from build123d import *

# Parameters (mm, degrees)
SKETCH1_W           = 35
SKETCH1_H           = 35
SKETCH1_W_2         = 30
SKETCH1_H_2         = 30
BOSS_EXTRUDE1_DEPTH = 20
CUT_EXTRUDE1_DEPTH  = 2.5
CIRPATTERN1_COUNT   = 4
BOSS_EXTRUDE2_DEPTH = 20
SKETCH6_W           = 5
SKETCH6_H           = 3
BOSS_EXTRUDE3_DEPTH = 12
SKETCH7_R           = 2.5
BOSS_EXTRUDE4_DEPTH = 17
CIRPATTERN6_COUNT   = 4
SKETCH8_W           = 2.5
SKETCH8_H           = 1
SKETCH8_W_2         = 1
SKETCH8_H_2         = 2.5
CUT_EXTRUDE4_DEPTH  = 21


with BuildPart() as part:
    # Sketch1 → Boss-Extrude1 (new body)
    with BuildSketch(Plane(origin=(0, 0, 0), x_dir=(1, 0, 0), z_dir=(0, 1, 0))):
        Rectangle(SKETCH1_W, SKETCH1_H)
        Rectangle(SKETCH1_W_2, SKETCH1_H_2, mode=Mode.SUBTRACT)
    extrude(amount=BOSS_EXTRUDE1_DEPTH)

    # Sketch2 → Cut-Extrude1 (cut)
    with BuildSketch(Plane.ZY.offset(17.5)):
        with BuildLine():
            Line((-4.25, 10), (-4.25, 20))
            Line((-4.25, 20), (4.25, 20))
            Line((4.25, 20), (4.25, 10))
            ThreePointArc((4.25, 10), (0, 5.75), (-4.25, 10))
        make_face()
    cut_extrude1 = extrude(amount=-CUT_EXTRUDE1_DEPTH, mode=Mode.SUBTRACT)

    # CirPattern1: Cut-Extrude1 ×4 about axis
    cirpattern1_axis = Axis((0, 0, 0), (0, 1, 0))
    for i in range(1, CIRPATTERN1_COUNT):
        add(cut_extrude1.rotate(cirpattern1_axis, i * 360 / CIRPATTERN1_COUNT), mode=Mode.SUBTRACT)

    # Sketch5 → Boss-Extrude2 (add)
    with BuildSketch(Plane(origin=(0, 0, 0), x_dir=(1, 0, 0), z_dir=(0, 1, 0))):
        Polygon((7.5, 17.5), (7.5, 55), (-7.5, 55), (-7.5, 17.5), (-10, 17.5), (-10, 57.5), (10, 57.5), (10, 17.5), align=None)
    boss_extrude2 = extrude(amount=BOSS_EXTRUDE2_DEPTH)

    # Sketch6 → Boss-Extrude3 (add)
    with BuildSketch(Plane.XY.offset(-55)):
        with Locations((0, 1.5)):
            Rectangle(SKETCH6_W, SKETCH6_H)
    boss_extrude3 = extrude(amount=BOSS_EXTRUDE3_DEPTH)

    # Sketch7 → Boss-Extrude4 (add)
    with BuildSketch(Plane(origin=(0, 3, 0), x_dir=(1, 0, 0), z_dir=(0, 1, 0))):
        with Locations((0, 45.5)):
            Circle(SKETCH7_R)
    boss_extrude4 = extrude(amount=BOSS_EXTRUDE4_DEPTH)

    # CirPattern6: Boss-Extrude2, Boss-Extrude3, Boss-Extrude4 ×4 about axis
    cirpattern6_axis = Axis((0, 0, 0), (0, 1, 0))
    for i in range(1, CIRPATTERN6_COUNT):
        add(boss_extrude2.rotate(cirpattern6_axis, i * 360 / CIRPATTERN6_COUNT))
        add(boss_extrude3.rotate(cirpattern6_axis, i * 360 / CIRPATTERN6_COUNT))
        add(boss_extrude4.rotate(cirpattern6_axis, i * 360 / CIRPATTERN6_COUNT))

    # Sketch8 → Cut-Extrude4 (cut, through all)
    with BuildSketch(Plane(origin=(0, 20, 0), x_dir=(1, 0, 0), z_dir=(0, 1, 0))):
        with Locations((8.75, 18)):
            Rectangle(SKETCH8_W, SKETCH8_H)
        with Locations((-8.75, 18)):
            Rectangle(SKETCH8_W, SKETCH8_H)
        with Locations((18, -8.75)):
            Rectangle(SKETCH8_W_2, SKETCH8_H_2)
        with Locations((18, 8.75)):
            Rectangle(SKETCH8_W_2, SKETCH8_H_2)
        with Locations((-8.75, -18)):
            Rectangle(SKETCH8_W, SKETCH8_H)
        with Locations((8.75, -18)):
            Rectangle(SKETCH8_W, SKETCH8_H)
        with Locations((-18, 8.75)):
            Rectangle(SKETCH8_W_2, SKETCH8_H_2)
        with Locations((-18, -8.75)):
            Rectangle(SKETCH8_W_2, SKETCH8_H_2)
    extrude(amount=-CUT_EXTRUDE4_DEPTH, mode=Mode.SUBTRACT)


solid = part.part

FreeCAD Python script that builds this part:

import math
import FreeCAD as App
import Part
import Sketcher
from FreeCAD import Vector


def add_polygon(sketch, points):
    """Adds a closed chain of lines whose ends are joined by coincident constraints."""
    first, n = sketch.GeometryCount, len(points)
    for a, b in zip(points, points[1:] + points[:1]):
        sketch.addGeometry(Part.LineSegment(App.Vector(*a, 0), App.Vector(*b, 0)), False)
    for i in range(n):
        sketch.addConstraint(Sketcher.Constraint("Coincident", first + i, 2, first + (i + 1) % n, 1))

doc = App.newDocument("Part")
body = doc.addObject("PartDesign::Body", "Body")
body.AllowCompound = True

# Sketch on XZ plane
sketch1 = body.newObject("Sketcher::SketchObject", "Sketch")
sketch1.AttachmentSupport = (doc.getObject("XZ_Plane"), [""])
sketch1.MapMode = "FlatFace"
add_polygon(sketch1, [(-18, -18), (-18, 18), (18, 18), (18, -18)])  # lines 0-3
add_polygon(sketch1, [(15, 15), (-15, 15), (-15, -15), (15, -15)])  # lines 4-7
sketch1.addConstraint(Sketcher.Constraint("Vertical", 0))
sketch1.addConstraint(Sketcher.Constraint("Horizontal", 1))
sketch1.addConstraint(Sketcher.Constraint("Vertical", 2))
sketch1.addConstraint(Sketcher.Constraint("Horizontal", 3))
sketch1.addConstraint(Sketcher.Constraint("Horizontal", 4))
sketch1.addConstraint(Sketcher.Constraint("Vertical", 5))
sketch1.addConstraint(Sketcher.Constraint("Horizontal", 6))
sketch1.addConstraint(Sketcher.Constraint("Vertical", 7))
sketch1.addConstraint(Sketcher.Constraint("Symmetric", 0, 2, 2, 2, -1, 1))
sketch1.addConstraint(Sketcher.Constraint("Symmetric", 4, 2, 6, 2, -1, 1))
sketch1.addConstraint(Sketcher.Constraint("Equal", 3, 0))
sketch1.addConstraint(Sketcher.Constraint("Equal", 6, 5))
sketch1.addConstraint(Sketcher.Constraint("DistanceX", 1, 1, 1, 2, 35.0))
sketch1.addConstraint(Sketcher.Constraint("DistanceX", 4, 2, 4, 1, 30.0))
pad1 = body.newObject("PartDesign::Pad", "Pad")
pad1.Profile = sketch1
pad1.Length = 20
pad1.Reversed = True

# Sketch on YZ plane
sketch2 = body.newObject("Sketcher::SketchObject", "Sketch001")
sketch2.AttachmentSupport = (doc.getObject("YZ_Plane"), [""])
sketch2.MapMode = "FlatFace"
sketch2.AttachmentOffset = App.Placement(Vector(0, 0, -17.5), App.Rotation())
sketch2.addGeometry(Part.LineSegment(Vector(20, -4.2, 0), Vector(10, -4.2, 0)), False)
sketch2.addGeometry(Part.ArcOfCircle(Part.Circle(Vector(10, 0, 0), Vector(0, 0, 1), 4.2), math.radians(90), math.radians(270)), False)
sketch2.addGeometry(Part.LineSegment(Vector(10, 4.2, 0), Vector(20, 4.2, 0)), False)
sketch2.addGeometry(Part.LineSegment(Vector(20, 4.2, 0), Vector(20, -4.2, 0)), False)
sketch2.addConstraint(Sketcher.Constraint("Tangent", 0, 2, 1, 2))
sketch2.addConstraint(Sketcher.Constraint("Tangent", 1, 1, 2, 1))
sketch2.addConstraint(Sketcher.Constraint("Coincident", 2, 2, 3, 1))
sketch2.addConstraint(Sketcher.Constraint("Coincident", 3, 2, 0, 1))
sketch2.addConstraint(Sketcher.Constraint("Horizontal", 0))
sketch2.addConstraint(Sketcher.Constraint("Horizontal", 2))
sketch2.addConstraint(Sketcher.Constraint("Vertical", 3))
sketch2.addConstraint(Sketcher.Constraint("PointOnObject", 1, 3, -1))
sketch2.addConstraint(Sketcher.Constraint("DistanceX", 0, 2, 0, 1, 10.0))
sketch2.addConstraint(Sketcher.Constraint("Radius", 1, 4.25))
sketch2.addConstraint(Sketcher.Constraint("DistanceX", -1, 1, 1, 3, 10.0))
pocket1 = body.newObject("PartDesign::Pocket", "Pocket")
pocket1.Profile = sketch2
pocket1.Length = 2.5
pocket1.Reversed = True
doc.recompute()

polarpattern = body.newObject("PartDesign::PolarPattern", "PolarPattern")
polarpattern.Originals = [pocket1]
polarpattern.Axis = (doc.getObject("Y_Axis"), [""])
polarpattern.Angle = 360
polarpattern.Occurrences = 4
body.Tip = polarpattern

# Sketch on XZ plane
sketch3 = body.newObject("Sketcher::SketchObject", "Sketch002")
sketch3.AttachmentSupport = (doc.getObject("XZ_Plane"), [""])
sketch3.MapMode = "FlatFace"
add_polygon(sketch3, [(7.5, -55), (7.5, -17.5), (10, -17.5), (10, -57.5), (-10, -57.5), (-10, -17.5), (-7.5, -17.5), (-7.5, -55)])  # lines 0-7
sketch3.addConstraint(Sketcher.Constraint("Vertical", 0))
sketch3.addConstraint(Sketcher.Constraint("Horizontal", 1))
sketch3.addConstraint(Sketcher.Constraint("Vertical", 2))
sketch3.addConstraint(Sketcher.Constraint("Horizontal", 3))
sketch3.addConstraint(Sketcher.Constraint("Vertical", 4))
sketch3.addConstraint(Sketcher.Constraint("Horizontal", 5))
sketch3.addConstraint(Sketcher.Constraint("Vertical", 6))
sketch3.addConstraint(Sketcher.Constraint("Horizontal", 7))
sketch3.addConstraint(Sketcher.Constraint("Symmetric", 1, 2, 4, 2, -2))
sketch3.addConstraint(Sketcher.Constraint("Equal", 1, 5))
sketch3.addConstraint(Sketcher.Constraint("DistanceX", 3, 2, 3, 1, 20.0))
sketch3.addConstraint(Sketcher.Constraint("DistanceX", 7, 1, 7, 2, 15.0))
sketch3.addConstraint(Sketcher.Constraint("DistanceY", 2, 2, 2, 1, 40.0))
sketch3.addConstraint(Sketcher.Constraint("DistanceY", 0, 1, 0, 2, 37.5))
sketch3.addConstraint(Sketcher.Constraint("DistanceY", 6, 2, -1, 1, 55.0))
pad2 = body.newObject("PartDesign::Pad", "Pad001")
pad2.Profile = sketch3
pad2.Length = 20
pad2.Reversed = True

# Sketch on XY plane
sketch4 = body.newObject("Sketcher::SketchObject", "Sketch003")
sketch4.AttachmentSupport = (doc.getObject("XY_Plane"), [""])
sketch4.MapMode = "FlatFace"
sketch4.AttachmentOffset = App.Placement(Vector(0, 0, -55), App.Rotation())
add_polygon(sketch4, [(-2.5, 3), (-2.5, 0), (2.5, 0), (2.5, 3)])  # lines 0-3
sketch4.addConstraint(Sketcher.Constraint("Vertical", 0))
sketch4.addConstraint(Sketcher.Constraint("Horizontal", 1))
sketch4.addConstraint(Sketcher.Constraint("Vertical", 2))
sketch4.addConstraint(Sketcher.Constraint("Horizontal", 3))
sketch4.addConstraint(Sketcher.Constraint("Symmetric", 0, 2, 1, 2, -1, 1))
sketch4.addConstraint(Sketcher.Constraint("DistanceX", 1, 1, 1, 2, 5.0))
sketch4.addConstraint(Sketcher.Constraint("DistanceY", 0, 2, 0, 1, 3.0))
pad3 = body.newObject("PartDesign::Pad", "Pad002")
pad3.Profile = sketch4
pad3.Length = 12

# Sketch on XZ plane
sketch5 = body.newObject("Sketcher::SketchObject", "Sketch004")
sketch5.AttachmentSupport = (doc.getObject("XZ_Plane"), [""])
sketch5.MapMode = "FlatFace"
sketch5.AttachmentOffset = App.Placement(Vector(0, 0, -3), App.Rotation())
sketch5.addGeometry(Part.Circle(Vector(0, -45.5, 0), Vector(0, 0, 1), 2.5), False)
sketch5.addConstraint(Sketcher.Constraint("PointOnObject", 0, 3, -2))
sketch5.addConstraint(Sketcher.Constraint("Diameter", 0, 5.0))
sketch5.addConstraint(Sketcher.Constraint("DistanceY", 0, 3, -1, 1, 45.5))
pad4 = body.newObject("PartDesign::Pad", "Pad003")
pad4.Profile = sketch5
pad4.Length = 17
pad4.Reversed = True
doc.recompute()

polarpattern2 = body.newObject("PartDesign::PolarPattern", "PolarPattern001")
polarpattern2.Originals = [pad2, pad3, pad4]
polarpattern2.Axis = (doc.getObject("Y_Axis"), [""])
polarpattern2.Angle = 360
polarpattern2.Occurrences = 4
body.Tip = polarpattern2

# Sketch on XZ plane
sketch6 = body.newObject("Sketcher::SketchObject", "Sketch005")
sketch6.AttachmentSupport = (doc.getObject("XZ_Plane"), [""])
sketch6.MapMode = "FlatFace"
sketch6.AttachmentOffset = App.Placement(Vector(0, 0, -20), App.Rotation())
add_polygon(sketch6, [(7.5, -18.5), (7.5, -17.5), (10, -17.5), (10, -18.5)])  # lines 0-3
add_polygon(sketch6, [(-10, -18.5), (-10, -17.5), (-7.5, -17.5), (-7.5, -18.5)])  # lines 4-7
add_polygon(sketch6, [(17.5, 7.5), (17.5, 10), (18.5, 10), (18.5, 7.5)])  # lines 8-11
add_polygon(sketch6, [(17.5, -10), (17.5, -7.5), (18.5, -7.5), (18.5, -10)])  # lines 12-15
add_polygon(sketch6, [(-10, 17.5), (-10, 18.5), (-7.5, 18.5), (-7.5, 17.5)])  # lines 16-19
add_polygon(sketch6, [(7.5, 17.5), (7.5, 18.5), (10, 18.5), (10, 17.5)])  # lines 20-23
add_polygon(sketch6, [(-18.5, -10), (-18.5, -7.5), (-17.5, -7.5), (-17.5, -10)])  # lines 24-27
add_polygon(sketch6, [(-18.5, 7.5), (-18.5, 10), (-17.5, 10), (-17.5, 7.5)])  # lines 28-31
sketch6.addConstraint(Sketcher.Constraint("Vertical", 0))
sketch6.addConstraint(Sketcher.Constraint("Horizontal", 1))
sketch6.addConstraint(Sketcher.Constraint("Vertical", 2))
sketch6.addConstraint(Sketcher.Constraint("Horizontal", 3))
sketch6.addConstraint(Sketcher.Constraint("Vertical", 4))
sketch6.addConstraint(Sketcher.Constraint("Horizontal", 5))
sketch6.addConstraint(Sketcher.Constraint("Vertical", 6))
sketch6.addConstraint(Sketcher.Constraint("Horizontal", 7))
sketch6.addConstraint(Sketcher.Constraint("Vertical", 8))
sketch6.addConstraint(Sketcher.Constraint("Horizontal", 9))
sketch6.addConstraint(Sketcher.Constraint("Vertical", 10))
sketch6.addConstraint(Sketcher.Constraint("Horizontal", 11))
sketch6.addConstraint(Sketcher.Constraint("Vertical", 12))
sketch6.addConstraint(Sketcher.Constraint("Horizontal", 13))
sketch6.addConstraint(Sketcher.Constraint("Vertical", 14))
sketch6.addConstraint(Sketcher.Constraint("Horizontal", 15))
sketch6.addConstraint(Sketcher.Constraint("Vertical", 16))
sketch6.addConstraint(Sketcher.Constraint("Horizontal", 17))
sketch6.addConstraint(Sketcher.Constraint("Vertical", 18))
sketch6.addConstraint(Sketcher.Constraint("Horizontal", 19))
sketch6.addConstraint(Sketcher.Constraint("Vertical", 20))
sketch6.addConstraint(Sketcher.Constraint("Horizontal", 21))
sketch6.addConstraint(Sketcher.Constraint("Vertical", 22))
sketch6.addConstraint(Sketcher.Constraint("Horizontal", 23))
sketch6.addConstraint(Sketcher.Constraint("Vertical", 24))
sketch6.addConstraint(Sketcher.Constraint("Horizontal", 25))
sketch6.addConstraint(Sketcher.Constraint("Vertical", 26))
sketch6.addConstraint(Sketcher.Constraint("Horizontal", 27))
sketch6.addConstraint(Sketcher.Constraint("Vertical", 28))
sketch6.addConstraint(Sketcher.Constraint("Horizontal", 29))
sketch6.addConstraint(Sketcher.Constraint("Vertical", 30))
sketch6.addConstraint(Sketcher.Constraint("Horizontal", 31))
sketch6.addConstraint(Sketcher.Constraint("Symmetric", 2, 2, 16, 2, -1, 1))
sketch6.addConstraint(Sketcher.Constraint("Symmetric", 0, 2, 18, 2, -1, 1))
sketch6.addConstraint(Sketcher.Constraint("Symmetric", 6, 2, 20, 2, -1, 1))
sketch6.addConstraint(Sketcher.Constraint("Symmetric", 4, 2, 22, 2, -1, 1))
sketch6.addConstraint(Sketcher.Constraint("Symmetric", 10, 2, 24, 2, -1, 1))
sketch6.addConstraint(Sketcher.Constraint("Symmetric", 8, 2, 26, 2, -1, 1))
sketch6.addConstraint(Sketcher.Constraint("Symmetric", 14, 2, 28, 2, -1, 1))
sketch6.addConstraint(Sketcher.Constraint("Symmetric", 12, 2, 30, 2, -1, 1))
sketch6.addConstraint(Sketcher.Constraint("Symmetric", 1, 2, 4, 2, -2))
sketch6.addConstraint(Sketcher.Constraint("Symmetric", 3, 2, 6, 2, -2))
sketch6.addConstraint(Sketcher.Constraint("Symmetric", 13, 2, 24, 2, -2))
sketch6.addConstraint(Sketcher.Constraint("Symmetric", 15, 2, 26, 2, -2))
sketch6.addConstraint(Sketcher.Constraint("Equal", 31, 0))
sketch6.addConstraint(Sketcher.Constraint("Equal", 23, 8))
sketch6.addConstraint(Sketcher.Constraint("DistanceX", 9, 1, 9, 2, 1.0))
sketch6.addConstraint(Sketcher.Constraint("DistanceX", 1, 1, 1, 2, 2.5))
sketch6.addConstraint(Sketcher.Constraint("DistanceX", -1, 1, 1, 2, 10.0))
sketch6.addConstraint(Sketcher.Constraint("DistanceY", -1, 1, 8, 2, 10.0))
sketch6.addConstraint(Sketcher.Constraint("DistanceX", 0, 2, 8, 2, 10.0))
sketch6.addConstraint(Sketcher.Constraint("DistanceY", 1, 2, 10, 2, 25.0))
pocket2 = body.newObject("PartDesign::Pocket", "Pocket001")
pocket2.Profile = sketch6
pocket2.Type = "ThroughAll"
pocket2.Reversed = True

doc.recompute()
